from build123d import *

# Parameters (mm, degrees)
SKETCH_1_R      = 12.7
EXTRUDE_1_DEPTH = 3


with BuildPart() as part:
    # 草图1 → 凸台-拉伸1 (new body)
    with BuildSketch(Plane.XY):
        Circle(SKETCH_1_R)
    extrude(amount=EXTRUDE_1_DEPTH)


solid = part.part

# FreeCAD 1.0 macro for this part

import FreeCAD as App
import Part
import Sketcher
from FreeCAD import Vector

doc = App.newDocument("Part")
body = doc.addObject("PartDesign::Body", "Body")

sketch1 = body.newObject("Sketcher::SketchObject", "Sketch")
sketch1.AttachmentSupport = (doc.getObject("XY_Plane"), [""])
sketch1.MapMode = "FlatFace"
sketch1.addGeometry(Part.Circle(Vector(0, 0, 0), Vector(0, 0, 1), 13), False)
sketch1.addConstraint([
    Sketcher.Constraint("Coincident", 0, 3, -1, 1),
    Sketcher.Constraint("Diameter", 0, 25.4),
])
pad1 = body.newObject("PartDesign::Pad", "Pad")
pad1.Profile = sketch1
pad1.Length = 3

doc.recompute()
